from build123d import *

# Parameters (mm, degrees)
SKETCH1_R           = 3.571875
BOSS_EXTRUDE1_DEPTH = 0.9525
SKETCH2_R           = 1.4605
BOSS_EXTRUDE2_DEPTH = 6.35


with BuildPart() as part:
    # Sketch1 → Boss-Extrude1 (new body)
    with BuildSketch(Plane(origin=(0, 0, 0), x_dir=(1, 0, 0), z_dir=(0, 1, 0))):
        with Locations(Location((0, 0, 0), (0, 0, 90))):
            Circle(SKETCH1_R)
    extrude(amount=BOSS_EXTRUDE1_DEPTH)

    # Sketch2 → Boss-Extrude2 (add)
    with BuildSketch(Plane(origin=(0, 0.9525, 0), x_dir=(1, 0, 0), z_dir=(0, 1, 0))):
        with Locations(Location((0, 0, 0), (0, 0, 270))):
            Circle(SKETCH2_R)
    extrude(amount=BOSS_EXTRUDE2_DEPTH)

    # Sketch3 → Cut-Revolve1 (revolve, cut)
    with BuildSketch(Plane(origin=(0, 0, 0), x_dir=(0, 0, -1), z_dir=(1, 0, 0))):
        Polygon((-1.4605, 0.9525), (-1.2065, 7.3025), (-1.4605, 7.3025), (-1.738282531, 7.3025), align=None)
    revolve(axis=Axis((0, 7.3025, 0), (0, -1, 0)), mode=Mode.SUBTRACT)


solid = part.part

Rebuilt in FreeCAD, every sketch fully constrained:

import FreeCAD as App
import Part
import Sketcher
from FreeCAD import Vector
Q = App.Units.Quantity

doc = App.newDocument("Part")
body = doc.addObject("PartDesign::Body", "Body")

# Sketch on XZ plane
sketch1 = body.newObject("Sketcher::SketchObject", "Sketch")
sketch1.AttachmentSupport = (doc.getObject("XZ_Plane"), [""])
sketch1.MapMode = "FlatFace"
sketch1.addGeometry(Part.Circle(Vector(0, 0, 0), Vector(0, 0, 1), 3.6), False)
sketch1.addConstraint(Sketcher.Constraint("Coincident", 0, 3, -1, 1))
sketch1.addConstraint(Sketcher.Constraint("Diameter", 0, Q("0.28125 in")))
pad1 = body.newObject("PartDesign::Pad", "Pad")
pad1.Profile = sketch1
pad1.Length = Q("0.0375 in")
pad1.Reversed = True

# Sketch on XZ plane
sketch2 = body.newObject("Sketcher::SketchObject", "Sketch001")
sketch2.AttachmentSupport = (doc.getObject("XZ_Plane"), [""])
sketch2.MapMode = "FlatFace"
sketch2.AttachmentOffset = App.Placement(Vector(0, 0, -0.0375 * 25.4), App.Rotation())
sketch2.addGeometry(Part.Circle(Vector(0, 0, 0), Vector(0, 0, 1), 1.5), False)
sketch2.addConstraint(Sketcher.Constraint("Coincident", 0, 3, -1, 1))
sketch2.addConstraint(Sketcher.Constraint("Diameter", 0, Q("0.115 in")))
pad2 = body.newObject("PartDesign::Pad", "Pad001")
pad2.Profile = sketch2
pad2.Length = Q("0.25 in")
pad2.Reversed = True

# Sketch on YZ plane
sketch3 = body.newObject("Sketcher::SketchObject", "Sketch002")
sketch3.AttachmentSupport = (doc.getObject("YZ_Plane"), [""])
sketch3.MapMode = "FlatFace"
sketch3.addGeometry(Part.LineSegment(Vector(1, 1.5, 0), Vector(7.3, 1.2, 0)), False)
sketch3.addGeometry(Part.LineSegment(Vector(7.3, 1.2, 0), Vector(7.3, 1.7, 0)), False)
sketch3.addGeometry(Part.LineSegment(Vector(7.3, 1.7, 0), Vector(1, 1.5, 0)), False)
sketch3.addConstraint(Sketcher.Constraint("Coincident", 0, 2, 1, 1))
sketch3.addConstraint(Sketcher.Constraint("Coincident", 1, 2, 2, 1))
sketch3.addConstraint(Sketcher.Constraint("Coincident", 2, 2, 0, 1))
sketch3.addConstraint(Sketcher.Constraint("Vertical", 1))
sketch3.addConstraint(Sketcher.Constraint("DistanceX", 2, 2, 0, 2, Q("0.25 in")))
sketch3.addConstraint(Sketcher.Constraint("DistanceY", 0, 2, 2, 2, Q("0.01 in")))
sketch3.addConstraint(Sketcher.Constraint("DistanceX", -1, 1, 0, 2, Q("0.2875 in")))
sketch3.addConstraint(Sketcher.Constraint("DistanceY", -1, 1, 0, 2, Q("0.0475 in")))
sketch3.addConstraint(Sketcher.Constraint("DistanceY", 1, 1, 1, 2, Q("0.531783 mm")))
groove = body.newObject("PartDesign::Groove", "Groove")
groove.Profile = sketch3
groove.ReferenceAxis = (sketch3, ["H_Axis"])
groove.Angle = 360

doc.recompute()
